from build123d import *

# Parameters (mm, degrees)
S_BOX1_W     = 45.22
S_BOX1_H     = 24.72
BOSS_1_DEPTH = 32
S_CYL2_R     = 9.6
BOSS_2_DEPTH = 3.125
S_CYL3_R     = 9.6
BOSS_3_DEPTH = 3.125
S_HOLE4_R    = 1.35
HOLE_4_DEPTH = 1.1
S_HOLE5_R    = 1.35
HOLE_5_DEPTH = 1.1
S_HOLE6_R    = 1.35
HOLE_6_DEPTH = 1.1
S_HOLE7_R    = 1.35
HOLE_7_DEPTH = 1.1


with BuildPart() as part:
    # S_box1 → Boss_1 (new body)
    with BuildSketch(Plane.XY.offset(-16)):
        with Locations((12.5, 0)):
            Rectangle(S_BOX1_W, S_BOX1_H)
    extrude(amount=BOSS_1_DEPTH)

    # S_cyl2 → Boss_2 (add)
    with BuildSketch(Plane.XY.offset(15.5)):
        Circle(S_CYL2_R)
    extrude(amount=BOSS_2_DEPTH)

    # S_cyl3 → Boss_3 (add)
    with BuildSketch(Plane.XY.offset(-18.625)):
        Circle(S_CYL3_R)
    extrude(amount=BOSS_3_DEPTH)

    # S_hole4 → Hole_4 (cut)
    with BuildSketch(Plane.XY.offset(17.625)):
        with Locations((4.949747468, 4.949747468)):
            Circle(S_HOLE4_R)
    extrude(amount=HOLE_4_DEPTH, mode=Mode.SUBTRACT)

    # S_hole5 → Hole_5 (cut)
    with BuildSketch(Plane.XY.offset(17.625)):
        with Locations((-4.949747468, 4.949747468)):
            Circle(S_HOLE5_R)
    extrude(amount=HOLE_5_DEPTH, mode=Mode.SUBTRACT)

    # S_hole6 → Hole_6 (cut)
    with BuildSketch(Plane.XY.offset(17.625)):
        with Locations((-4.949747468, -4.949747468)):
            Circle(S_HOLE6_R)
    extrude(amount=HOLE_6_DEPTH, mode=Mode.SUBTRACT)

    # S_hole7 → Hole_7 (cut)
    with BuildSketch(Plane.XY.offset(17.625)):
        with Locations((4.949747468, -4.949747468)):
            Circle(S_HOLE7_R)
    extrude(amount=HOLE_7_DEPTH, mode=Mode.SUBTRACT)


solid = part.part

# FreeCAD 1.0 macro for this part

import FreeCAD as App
import Part
import Sketcher

V = App.Vector


def add_polygon(sketch, points):
    """Adds a closed chain of lines whose ends are joined by coincident constraints."""
    first, n = sketch.GeometryCount, len(points)
    for a, b in zip(points, points[1:] + points[:1]):
        sketch.addGeometry(Part.LineSegment(App.Vector(*a, 0), App.Vector(*b, 0)), False)
    for i in range(n):
        sketch.addConstraint(Sketcher.Constraint("Coincident", first + i, 2, first + (i + 1) % n, 1))

doc = App.newDocument("Part")
params = doc.addObject("Spreadsheet::Sheet", "Params")
for row, (alias, value) in enumerate([
    ("sketch1_width", "45.22 mm"),
    ("sketch1_height", "24.72 mm"),
    ("pad1_length", "32 mm"),
    ("sketch2_diameter", "19.2 mm"),
    ("pad2_length", "3.125 mm"),
    ("sketch3_diameter", "19.2 mm"),
    ("pad3_length", "3.125 mm"),
    ("sketch4_diameter", "2.7 mm"),
    ("pocket1_length", "1.1 mm"),
    ("sketch5_diameter", "2.7 mm"),
    ("pocket2_length", "1.1 mm"),
    ("sketch6_diameter", "2.7 mm"),
    ("pocket3_length", "1.1 mm"),
    ("sketch7_diameter", "2.7 mm"),
    ("pocket4_length", "1.1 mm"),
], start=1):
    params.set(f"A{row}", alias)
    params.set(f"B{row}", "=" + value)
    params.setAlias(f"B{row}", alias)

body = doc.addObject("PartDesign::Body", "Body")

sketch1 = doc.addObject("Sketcher::SketchObject", "Sketch")
body.addObject(sketch1)
sketch1.AttachmentSupport = (doc.XY_Plane, [""])
sketch1.MapMode = "FlatFace"
sketch1.AttachmentOffset = App.Placement(V(0, 0, -16), App.Rotation())
add_polygon(sketch1, [(-10.11, 12.36), (-10.11, -12.36), (35.11, -12.36), (35.11, 12.36)])
sketch1.addConstraint([
    Sketcher.Constraint("Vertical", 0),
    Sketcher.Constraint("Horizontal", 1),
    Sketcher.Constraint("Vertical", 2),
    Sketcher.Constraint("Horizontal", 3),
    Sketcher.Constraint("DistanceX", 1, 1, 1, 2, 45.22),
    Sketcher.Constraint("DistanceY", 0, 2, 0, 1, 24.72),
    Sketcher.Constraint("DistanceX", 0, 2, -1, 1, 10.11),
    Sketcher.Constraint("DistanceY", 0, 2, -1, 1, 12.36),
])
sketch1.setExpression("Constraints[8]", "Params.sketch1_width")
sketch1.setExpression("Constraints[9]", "Params.sketch1_height")
pad1 = doc.addObject("PartDesign::Pad", "Pad")
body.addObject(pad1)
pad1.Profile = sketch1
pad1.setExpression("Length", "Params.pad1_length")

sketch2 = doc.addObject("Sketcher::SketchObject", "Sketch001")
body.addObject(sketch2)
sketch2.AttachmentSupport = (doc.XY_Plane, [""])
sketch2.MapMode = "FlatFace"
sketch2.AttachmentOffset = App.Placement(V(0, 0, 15.5), App.Rotation())
sketch2.addGeometry(Part.Circle(V(0, 0, 0), V(0, 0, 1), 9.6), False)
sketch2.addConstraint([
    Sketcher.Constraint("Coincident", 0, 3, -1, 1),
    Sketcher.Constraint("Diameter", 0, 19.2),
])
sketch2.setExpression("Constraints[1]", "Params.sketch2_diameter")
pad2 = doc.addObject("PartDesign::Pad", "Pad001")
body.addObject(pad2)
pad2.Profile = sketch2
pad2.setExpression("Length", "Params.pad2_length")

sketch3 = doc.addObject("Sketcher::SketchObject", "Sketch002")
body.addObject(sketch3)
sketch3.AttachmentSupport = (doc.XY_Plane, [""])
sketch3.MapMode = "FlatFace"
sketch3.AttachmentOffset = App.Placement(V(0, 0, -18.625), App.Rotation())
sketch3.addGeometry(Part.Circle(V(0, 0, 0), V(0, 0, 1), 9.6), False)
sketch3.addConstraint([
    Sketcher.Constraint("Coincident", 0, 3, -1, 1),
    Sketcher.Constraint("Diameter", 0, 19.2),
])
sketch3.setExpression("Constraints[1]", "Params.sketch3_diameter")
pad3 = doc.addObject("PartDesign::Pad", "Pad002")
body.addObject(pad3)
pad3.Profile = sketch3
pad3.setExpression("Length", "Params.pad3_length")

sketch4 = doc.addObject("Sketcher::SketchObject", "Sketch003")
body.addObject(sketch4)
sketch4.AttachmentSupport = (doc.XY_Plane, [""])
sketch4.MapMode = "FlatFace"
sketch4.AttachmentOffset = App.Placement(V(0, 0, 17.625), App.Rotation())
sketch4.addGeometry(Part.Circle(V(4.949747, 4.949747, 0), V(0, 0, 1), 1.35), False)
sketch4.addConstraint([
    Sketcher.Constraint("Diameter", 0, 2.7),
    Sketcher.Constraint("DistanceX", -1, 1, 0, 3, 4.949747),
    Sketcher.Constraint("DistanceY", -1, 1, 0, 3, 4.949747),
])
sketch4.setExpression("Constraints[0]", "Params.sketch4_diameter")
pocket1 = doc.addObject("PartDesign::Pocket", "Pocket")
body.addObject(pocket1)
pocket1.Profile = sketch4
pocket1.setExpression("Length", "Params.pocket1_length")
pocket1.Reversed = True

sketch5 = doc.addObject("Sketcher::SketchObject", "Sketch004")
body.addObject(sketch5)
sketch5.AttachmentSupport = (doc.XY_Plane, [""])
sketch5.MapMode = "FlatFace"
sketch5.AttachmentOffset = App.Placement(V(0, 0, 17.625), App.Rotation())
sketch5.addGeometry(Part.Circle(V(-4.949747, 4.949747, 0), V(0, 0, 1), 1.35), False)
sketch5.addConstraint([
    Sketcher.Constraint("Diameter", 0, 2.7),
    Sketcher.Constraint("DistanceX", 0, 3, -1, 1, 4.949747),
    Sketcher.Constraint("DistanceY", -1, 1, 0, 3, 4.949747),
])
sketch5.setExpression("Constraints[0]", "Params.sketch5_diameter")
pocket2 = doc.addObject("PartDesign::Pocket", "Pocket001")
body.addObject(pocket2)
pocket2.Profile = sketch5
pocket2.setExpression("Length", "Params.pocket2_length")
pocket2.Reversed = True

sketch6 = doc.addObject("Sketcher::SketchObject", "Sketch005")
body.addObject(sketch6)
sketch6.AttachmentSupport = (doc.XY_Plane, [""])
sketch6.MapMode = "FlatFace"
sketch6.AttachmentOffset = App.Placement(V(0, 0, 17.625), App.Rotation())
sketch6.addGeometry(Part.Circle(V(-4.949747, -4.949747, 0), V(0, 0, 1), 1.35), False)
sketch6.addConstraint([
    Sketcher.Constraint("Diameter", 0, 2.7),
    Sketcher.Constraint("DistanceX", 0, 3, -1, 1, 4.949747),
    Sketcher.Constraint("DistanceY", 0, 3, -1, 1, 4.949747),
])
sketch6.setExpression("Constraints[0]", "Params.sketch6_diameter")
pocket3 = doc.addObject("PartDesign::Pocket", "Pocket002")
body.addObject(pocket3)
pocket3.Profile = sketch6
pocket3.setExpression("Length", "Params.pocket3_length")
pocket3.Reversed = True

sketch7 = doc.addObject("Sketcher::SketchObject", "Sketch006")
body.addObject(sketch7)
sketch7.AttachmentSupport = (doc.XY_Plane, [""])
sketch7.MapMode = "FlatFace"
sketch7.AttachmentOffset = App.Placement(V(0, 0, 17.625), App.Rotation())
sketch7.addGeometry(Part.Circle(V(4.949747, -4.949747, 0), V(0, 0, 1), 1.35), False)
sketch7.addConstraint([
    Sketcher.Constraint("Diameter", 0, 2.7),
    Sketcher.Constraint("DistanceX", -1, 1, 0, 3, 4.949747),
    Sketcher.Constraint("DistanceY", 0, 3, -1, 1, 4.949747),
])
sketch7.setExpression("Constraints[0]", "Params.sketch7_diameter")
pocket4 = doc.addObject("PartDesign::Pocket", "Pocket003")
body.addObject(pocket4)
pocket4.Profile = sketch7
pocket4.setExpression("Length", "Params.pocket4_length")
pocket4.Reversed = True

doc.recompute()
